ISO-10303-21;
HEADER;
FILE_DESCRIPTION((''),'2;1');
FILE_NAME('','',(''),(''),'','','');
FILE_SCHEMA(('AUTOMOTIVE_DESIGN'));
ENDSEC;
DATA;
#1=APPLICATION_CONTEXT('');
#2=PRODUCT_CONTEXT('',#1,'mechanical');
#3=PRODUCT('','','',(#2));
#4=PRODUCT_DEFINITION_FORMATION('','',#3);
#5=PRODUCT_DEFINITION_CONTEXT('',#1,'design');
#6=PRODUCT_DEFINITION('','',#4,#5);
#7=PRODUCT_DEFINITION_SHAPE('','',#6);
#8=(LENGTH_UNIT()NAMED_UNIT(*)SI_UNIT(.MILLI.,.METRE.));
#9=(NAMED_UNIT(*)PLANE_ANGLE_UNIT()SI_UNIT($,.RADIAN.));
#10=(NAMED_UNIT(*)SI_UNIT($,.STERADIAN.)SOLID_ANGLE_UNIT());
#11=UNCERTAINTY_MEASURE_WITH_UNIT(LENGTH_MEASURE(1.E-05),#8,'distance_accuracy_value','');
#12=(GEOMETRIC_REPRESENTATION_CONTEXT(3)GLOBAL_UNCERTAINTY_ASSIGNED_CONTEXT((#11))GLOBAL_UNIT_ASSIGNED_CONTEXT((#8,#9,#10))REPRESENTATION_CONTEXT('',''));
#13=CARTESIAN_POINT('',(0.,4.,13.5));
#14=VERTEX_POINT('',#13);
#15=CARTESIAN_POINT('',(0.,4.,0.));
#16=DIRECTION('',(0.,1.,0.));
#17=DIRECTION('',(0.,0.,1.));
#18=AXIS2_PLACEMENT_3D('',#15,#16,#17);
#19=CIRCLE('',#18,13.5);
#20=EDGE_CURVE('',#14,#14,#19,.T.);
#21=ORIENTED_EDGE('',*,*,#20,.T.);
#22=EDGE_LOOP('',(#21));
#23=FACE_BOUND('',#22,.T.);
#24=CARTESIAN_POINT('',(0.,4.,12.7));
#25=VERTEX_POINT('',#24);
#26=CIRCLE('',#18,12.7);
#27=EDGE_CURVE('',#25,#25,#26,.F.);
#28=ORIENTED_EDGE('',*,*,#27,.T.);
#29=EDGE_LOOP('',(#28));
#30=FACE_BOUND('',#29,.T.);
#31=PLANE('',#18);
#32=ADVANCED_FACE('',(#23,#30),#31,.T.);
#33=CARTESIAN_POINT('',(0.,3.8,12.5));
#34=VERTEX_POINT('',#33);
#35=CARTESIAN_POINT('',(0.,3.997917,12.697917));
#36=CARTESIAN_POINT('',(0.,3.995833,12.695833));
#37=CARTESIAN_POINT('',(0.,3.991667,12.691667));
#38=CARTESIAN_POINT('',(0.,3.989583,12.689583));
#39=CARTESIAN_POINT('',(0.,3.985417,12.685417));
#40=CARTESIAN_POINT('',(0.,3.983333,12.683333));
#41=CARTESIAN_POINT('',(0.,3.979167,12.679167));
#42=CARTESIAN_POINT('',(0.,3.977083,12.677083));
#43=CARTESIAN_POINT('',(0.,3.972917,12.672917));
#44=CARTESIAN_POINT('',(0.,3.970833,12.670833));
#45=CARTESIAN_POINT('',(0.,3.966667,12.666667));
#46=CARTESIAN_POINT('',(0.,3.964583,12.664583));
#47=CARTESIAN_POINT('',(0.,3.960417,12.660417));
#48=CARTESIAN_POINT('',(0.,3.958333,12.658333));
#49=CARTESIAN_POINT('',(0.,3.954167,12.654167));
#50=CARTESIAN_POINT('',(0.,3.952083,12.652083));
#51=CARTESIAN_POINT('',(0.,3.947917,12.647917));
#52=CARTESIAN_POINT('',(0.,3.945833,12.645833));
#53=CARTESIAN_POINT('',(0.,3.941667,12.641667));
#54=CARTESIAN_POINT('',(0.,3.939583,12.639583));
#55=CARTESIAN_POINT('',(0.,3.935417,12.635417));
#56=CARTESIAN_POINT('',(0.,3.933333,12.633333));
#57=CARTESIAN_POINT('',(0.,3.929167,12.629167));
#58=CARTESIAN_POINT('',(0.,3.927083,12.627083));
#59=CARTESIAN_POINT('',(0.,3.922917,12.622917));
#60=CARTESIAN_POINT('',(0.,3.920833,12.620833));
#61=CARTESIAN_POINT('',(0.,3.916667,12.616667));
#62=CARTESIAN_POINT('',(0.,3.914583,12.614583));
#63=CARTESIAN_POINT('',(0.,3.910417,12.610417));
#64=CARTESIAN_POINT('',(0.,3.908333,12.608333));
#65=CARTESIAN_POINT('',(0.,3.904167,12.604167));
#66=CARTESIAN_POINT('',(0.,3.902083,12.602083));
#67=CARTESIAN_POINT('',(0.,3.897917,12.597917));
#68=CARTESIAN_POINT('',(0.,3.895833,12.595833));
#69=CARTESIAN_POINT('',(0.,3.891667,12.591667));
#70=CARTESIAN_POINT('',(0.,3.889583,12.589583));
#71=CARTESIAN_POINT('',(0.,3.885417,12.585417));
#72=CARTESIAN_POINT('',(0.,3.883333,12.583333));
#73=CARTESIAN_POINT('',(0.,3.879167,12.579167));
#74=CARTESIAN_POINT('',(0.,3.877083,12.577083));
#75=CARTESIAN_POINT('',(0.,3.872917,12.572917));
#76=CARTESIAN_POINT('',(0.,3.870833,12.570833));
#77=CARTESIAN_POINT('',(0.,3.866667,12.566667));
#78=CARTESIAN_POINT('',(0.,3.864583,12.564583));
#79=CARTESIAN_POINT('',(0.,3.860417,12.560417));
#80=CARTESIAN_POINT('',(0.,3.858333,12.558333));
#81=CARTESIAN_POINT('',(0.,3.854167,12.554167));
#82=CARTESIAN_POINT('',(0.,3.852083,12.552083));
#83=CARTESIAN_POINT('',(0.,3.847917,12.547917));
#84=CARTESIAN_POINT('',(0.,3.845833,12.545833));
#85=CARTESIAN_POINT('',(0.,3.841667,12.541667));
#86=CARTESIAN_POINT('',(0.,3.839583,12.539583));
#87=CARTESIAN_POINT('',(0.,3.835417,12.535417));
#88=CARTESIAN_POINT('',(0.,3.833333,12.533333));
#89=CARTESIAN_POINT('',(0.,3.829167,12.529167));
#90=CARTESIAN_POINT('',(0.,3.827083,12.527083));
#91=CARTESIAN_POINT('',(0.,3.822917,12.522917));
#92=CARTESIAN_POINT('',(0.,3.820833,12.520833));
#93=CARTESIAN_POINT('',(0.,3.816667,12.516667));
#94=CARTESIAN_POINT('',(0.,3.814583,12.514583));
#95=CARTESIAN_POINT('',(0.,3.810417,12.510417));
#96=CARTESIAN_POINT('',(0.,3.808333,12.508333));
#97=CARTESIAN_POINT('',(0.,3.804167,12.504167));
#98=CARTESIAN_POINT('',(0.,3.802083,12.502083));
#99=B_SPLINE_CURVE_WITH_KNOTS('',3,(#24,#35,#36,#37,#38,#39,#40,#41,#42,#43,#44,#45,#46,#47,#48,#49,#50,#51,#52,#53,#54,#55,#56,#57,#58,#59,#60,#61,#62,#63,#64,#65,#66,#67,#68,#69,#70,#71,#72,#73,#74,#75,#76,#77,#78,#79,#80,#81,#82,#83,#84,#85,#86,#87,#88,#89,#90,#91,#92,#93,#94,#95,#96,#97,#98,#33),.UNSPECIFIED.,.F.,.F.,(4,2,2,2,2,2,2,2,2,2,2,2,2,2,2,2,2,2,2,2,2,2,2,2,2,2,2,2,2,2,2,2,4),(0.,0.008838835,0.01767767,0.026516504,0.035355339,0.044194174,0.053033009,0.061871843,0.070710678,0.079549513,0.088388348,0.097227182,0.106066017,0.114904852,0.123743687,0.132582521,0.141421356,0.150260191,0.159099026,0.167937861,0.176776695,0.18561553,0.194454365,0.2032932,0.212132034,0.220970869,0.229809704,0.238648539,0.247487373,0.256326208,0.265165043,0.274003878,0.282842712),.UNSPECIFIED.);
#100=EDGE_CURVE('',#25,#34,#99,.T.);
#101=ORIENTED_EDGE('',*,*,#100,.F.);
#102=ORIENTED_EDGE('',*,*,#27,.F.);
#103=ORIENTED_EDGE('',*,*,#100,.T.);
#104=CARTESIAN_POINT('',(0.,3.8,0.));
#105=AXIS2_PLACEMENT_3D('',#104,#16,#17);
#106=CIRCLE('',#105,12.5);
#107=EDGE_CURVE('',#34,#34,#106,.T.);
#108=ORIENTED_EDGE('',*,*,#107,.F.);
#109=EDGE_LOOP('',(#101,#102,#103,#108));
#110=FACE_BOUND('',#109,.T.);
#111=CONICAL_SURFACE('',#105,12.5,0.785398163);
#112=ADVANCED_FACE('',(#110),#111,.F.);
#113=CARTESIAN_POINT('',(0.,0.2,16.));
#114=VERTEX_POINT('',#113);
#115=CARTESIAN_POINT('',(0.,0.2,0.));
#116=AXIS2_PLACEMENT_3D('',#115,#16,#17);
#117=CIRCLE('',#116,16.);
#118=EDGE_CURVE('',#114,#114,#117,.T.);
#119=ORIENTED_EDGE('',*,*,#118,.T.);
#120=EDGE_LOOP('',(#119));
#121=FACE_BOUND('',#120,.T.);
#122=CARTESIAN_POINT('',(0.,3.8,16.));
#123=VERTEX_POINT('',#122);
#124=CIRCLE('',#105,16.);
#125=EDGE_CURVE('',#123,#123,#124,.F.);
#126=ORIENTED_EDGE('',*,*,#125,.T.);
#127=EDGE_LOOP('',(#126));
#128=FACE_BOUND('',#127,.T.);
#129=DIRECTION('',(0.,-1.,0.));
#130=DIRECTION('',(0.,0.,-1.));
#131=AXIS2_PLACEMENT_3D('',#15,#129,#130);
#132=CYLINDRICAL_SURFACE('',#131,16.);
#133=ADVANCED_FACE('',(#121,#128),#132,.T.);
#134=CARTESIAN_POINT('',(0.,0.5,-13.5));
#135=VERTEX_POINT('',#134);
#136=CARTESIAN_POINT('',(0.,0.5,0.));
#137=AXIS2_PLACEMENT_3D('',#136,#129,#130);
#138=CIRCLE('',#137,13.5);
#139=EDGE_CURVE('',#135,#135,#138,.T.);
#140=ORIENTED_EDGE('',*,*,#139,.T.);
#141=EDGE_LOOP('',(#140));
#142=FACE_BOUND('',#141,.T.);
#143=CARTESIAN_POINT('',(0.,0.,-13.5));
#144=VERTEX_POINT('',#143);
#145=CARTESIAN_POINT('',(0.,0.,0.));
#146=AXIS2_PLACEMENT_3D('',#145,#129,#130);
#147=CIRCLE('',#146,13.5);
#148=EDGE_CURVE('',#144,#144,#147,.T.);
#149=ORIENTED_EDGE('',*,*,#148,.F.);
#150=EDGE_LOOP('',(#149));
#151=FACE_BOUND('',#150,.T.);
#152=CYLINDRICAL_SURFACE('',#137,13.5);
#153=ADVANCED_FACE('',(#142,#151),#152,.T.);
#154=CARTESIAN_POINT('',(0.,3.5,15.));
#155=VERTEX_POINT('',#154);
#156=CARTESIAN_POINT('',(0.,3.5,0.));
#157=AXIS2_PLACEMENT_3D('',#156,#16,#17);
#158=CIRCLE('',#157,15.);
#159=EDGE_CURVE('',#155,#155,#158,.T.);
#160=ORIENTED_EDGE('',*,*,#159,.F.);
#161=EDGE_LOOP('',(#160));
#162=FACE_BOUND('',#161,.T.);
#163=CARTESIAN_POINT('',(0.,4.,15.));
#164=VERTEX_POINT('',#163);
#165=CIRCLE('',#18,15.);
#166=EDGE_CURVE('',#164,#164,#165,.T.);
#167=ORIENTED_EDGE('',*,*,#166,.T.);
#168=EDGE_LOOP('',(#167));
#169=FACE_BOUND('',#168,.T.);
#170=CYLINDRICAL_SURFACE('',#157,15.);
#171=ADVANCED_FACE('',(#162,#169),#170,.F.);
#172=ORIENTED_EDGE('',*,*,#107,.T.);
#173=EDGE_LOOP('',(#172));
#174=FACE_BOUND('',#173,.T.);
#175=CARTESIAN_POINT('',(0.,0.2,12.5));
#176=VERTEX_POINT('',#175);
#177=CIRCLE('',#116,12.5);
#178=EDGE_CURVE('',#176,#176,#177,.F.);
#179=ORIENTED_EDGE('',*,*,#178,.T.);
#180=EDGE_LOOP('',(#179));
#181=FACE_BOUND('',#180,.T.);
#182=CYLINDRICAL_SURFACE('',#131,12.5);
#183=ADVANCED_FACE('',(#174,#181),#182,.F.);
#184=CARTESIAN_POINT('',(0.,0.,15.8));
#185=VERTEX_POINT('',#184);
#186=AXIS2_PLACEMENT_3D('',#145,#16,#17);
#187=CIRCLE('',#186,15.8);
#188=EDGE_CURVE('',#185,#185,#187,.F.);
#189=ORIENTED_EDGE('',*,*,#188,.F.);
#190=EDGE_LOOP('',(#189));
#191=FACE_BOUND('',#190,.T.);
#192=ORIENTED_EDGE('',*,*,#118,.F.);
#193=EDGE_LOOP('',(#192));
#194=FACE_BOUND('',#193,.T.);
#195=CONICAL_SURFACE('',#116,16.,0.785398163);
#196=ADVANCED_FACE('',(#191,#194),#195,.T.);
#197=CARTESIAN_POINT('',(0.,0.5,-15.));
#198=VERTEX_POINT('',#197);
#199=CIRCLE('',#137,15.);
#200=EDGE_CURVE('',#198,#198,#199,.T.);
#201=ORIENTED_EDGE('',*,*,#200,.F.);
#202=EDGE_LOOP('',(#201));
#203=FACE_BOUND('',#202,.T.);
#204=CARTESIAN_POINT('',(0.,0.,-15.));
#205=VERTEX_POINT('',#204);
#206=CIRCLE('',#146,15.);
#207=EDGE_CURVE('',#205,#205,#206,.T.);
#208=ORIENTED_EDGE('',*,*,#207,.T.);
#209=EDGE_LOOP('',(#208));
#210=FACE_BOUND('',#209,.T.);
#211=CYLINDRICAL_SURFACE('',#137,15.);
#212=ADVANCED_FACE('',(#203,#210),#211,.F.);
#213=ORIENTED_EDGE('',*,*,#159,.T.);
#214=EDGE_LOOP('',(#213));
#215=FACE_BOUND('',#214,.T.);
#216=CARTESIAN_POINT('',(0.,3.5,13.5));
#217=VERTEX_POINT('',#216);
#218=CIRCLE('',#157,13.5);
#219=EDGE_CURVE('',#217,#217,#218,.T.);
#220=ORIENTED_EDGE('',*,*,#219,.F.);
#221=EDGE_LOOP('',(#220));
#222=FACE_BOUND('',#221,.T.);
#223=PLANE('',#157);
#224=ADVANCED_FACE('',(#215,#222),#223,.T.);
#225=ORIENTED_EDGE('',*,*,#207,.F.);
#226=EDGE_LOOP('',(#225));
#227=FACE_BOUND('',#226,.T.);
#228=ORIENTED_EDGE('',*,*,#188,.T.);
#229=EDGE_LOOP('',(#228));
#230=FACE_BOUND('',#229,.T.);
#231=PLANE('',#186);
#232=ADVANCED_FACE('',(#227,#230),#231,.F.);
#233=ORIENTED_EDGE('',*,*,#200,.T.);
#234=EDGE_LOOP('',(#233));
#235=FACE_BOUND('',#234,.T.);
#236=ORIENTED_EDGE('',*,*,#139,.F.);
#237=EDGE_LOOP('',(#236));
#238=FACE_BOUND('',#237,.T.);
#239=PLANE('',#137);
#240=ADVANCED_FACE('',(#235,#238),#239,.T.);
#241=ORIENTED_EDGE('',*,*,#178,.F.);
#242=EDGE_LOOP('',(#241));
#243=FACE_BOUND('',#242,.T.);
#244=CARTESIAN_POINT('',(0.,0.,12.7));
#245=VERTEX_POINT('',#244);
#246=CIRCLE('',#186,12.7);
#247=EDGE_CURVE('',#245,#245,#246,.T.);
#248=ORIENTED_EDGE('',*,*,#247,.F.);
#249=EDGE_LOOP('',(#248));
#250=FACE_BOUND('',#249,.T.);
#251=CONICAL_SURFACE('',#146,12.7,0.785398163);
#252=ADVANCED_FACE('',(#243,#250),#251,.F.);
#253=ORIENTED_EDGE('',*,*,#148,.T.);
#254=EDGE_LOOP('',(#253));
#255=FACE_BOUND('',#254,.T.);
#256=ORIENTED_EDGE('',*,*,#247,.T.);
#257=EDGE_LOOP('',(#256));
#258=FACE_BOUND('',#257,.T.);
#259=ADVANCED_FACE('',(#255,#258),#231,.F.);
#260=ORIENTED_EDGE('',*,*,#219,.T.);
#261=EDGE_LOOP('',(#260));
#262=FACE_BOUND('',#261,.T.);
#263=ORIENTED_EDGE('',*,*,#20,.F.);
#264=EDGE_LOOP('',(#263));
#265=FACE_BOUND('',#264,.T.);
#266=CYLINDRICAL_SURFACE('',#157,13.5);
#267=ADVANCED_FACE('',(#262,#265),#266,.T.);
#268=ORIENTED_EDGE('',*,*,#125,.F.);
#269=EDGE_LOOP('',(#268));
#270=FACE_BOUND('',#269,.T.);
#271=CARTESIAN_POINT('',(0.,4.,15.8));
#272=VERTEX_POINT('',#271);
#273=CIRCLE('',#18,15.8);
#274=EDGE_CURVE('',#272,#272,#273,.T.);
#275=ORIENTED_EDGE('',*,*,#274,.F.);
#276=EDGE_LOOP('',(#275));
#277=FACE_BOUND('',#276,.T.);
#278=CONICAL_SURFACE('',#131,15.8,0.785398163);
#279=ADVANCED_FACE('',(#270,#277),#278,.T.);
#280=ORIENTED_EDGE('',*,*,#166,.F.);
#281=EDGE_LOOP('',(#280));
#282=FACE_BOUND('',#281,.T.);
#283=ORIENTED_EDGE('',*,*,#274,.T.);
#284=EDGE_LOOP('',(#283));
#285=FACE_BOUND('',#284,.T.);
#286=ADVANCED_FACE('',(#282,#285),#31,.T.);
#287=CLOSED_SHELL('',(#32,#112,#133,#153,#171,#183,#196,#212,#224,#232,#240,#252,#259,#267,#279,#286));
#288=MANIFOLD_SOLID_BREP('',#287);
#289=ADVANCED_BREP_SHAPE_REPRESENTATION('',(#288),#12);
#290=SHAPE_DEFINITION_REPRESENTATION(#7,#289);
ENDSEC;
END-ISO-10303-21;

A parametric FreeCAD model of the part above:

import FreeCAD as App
import Part
import Sketcher
from FreeCAD import Vector
Q = App.Units.Quantity


def edges_at(feature, points):
    """Names of the edges that pass closest to the given points."""
    edges = feature.Shape.Edges
    near = lambda p: min(range(len(edges)), key=lambda i: edges[i].distToShape(Part.Vertex(*p))[0])
    return sorted({f"Edge{near(p) + 1}" for p in points})

doc = App.newDocument("Part")
body = doc.addObject("PartDesign::Body", "Body")

sketch1 = doc.addObject("Sketcher::SketchObject", "Sketch")
body.addObject(sketch1)
sketch1.AttachmentSupport = (doc.XZ_Plane, [""])
sketch1.MapMode = "FlatFace"
sketch1.addGeometry([
    Part.Circle(Vector(0, 0, 0), Vector(0, 0, 1), 16),
    Part.Circle(Vector(0, 0, 0), Vector(0, 0, 1), 12),
], False)
sketch1.addConstraint([
    Sketcher.Constraint("Coincident", 0, 3, -1, 1),
    Sketcher.Constraint("Coincident", 1, 3, -1, 1),
    Sketcher.Constraint("Diameter", 0, Q("32 mm")),
    Sketcher.Constraint("Diameter", 1, Q("25 mm")),
])
pad1 = doc.addObject("PartDesign::Pad", "Pad")
body.addObject(pad1)
pad1.Profile = sketch1
pad1.Length = 4
pad1.Reversed = True
doc.recompute()

chamfer = doc.addObject("PartDesign::Chamfer", "Chamfer")
body.addObject(chamfer)
chamfer.Base = (pad1, edges_at(pad1, [
    (0, 0, -16),
    (0, 4, -16),
    (0, 0, -12.5),
    (0, 4, -12.5),
]))
chamfer.Size = 0.2

sketch2 = doc.addObject("Sketcher::SketchObject", "Sketch001")
body.addObject(sketch2)
sketch2.AttachmentSupport = (doc.XZ_Plane, [""])
sketch2.MapMode = "FlatFace"
sketch2.AttachmentOffset = App.Placement(Vector(0, 0, -4), App.Rotation())
sketch2.addGeometry([
    Part.Circle(Vector(0, 0, 0), Vector(0, 0, 1), 15),
    Part.Circle(Vector(0, 0, 0), Vector(0, 0, 1), 14),
], False)
sketch2.addConstraint([
    Sketcher.Constraint("Coincident", 0, 3, -1, 1),
    Sketcher.Constraint("Coincident", 1, 3, -1, 1),
    Sketcher.Constraint("Diameter", 0, Q("30 mm")),
    Sketcher.Constraint("Diameter", 1, Q("27 mm")),
])
pocket1 = doc.addObject("PartDesign::Pocket", "Pocket")
body.addObject(pocket1)
pocket1.Profile = sketch2
pocket1.Length = 0.5
pocket1.Reversed = True

sketch3 = doc.addObject("Sketcher::SketchObject", "Sketch002")
body.addObject(sketch3)
sketch3.AttachmentSupport = (doc.XZ_Plane, [""])
sketch3.MapMode = "FlatFace"
sketch3.AttachmentOffset = App.Placement(Vector(0, 0, -0.5), App.Rotation())
sketch3.addGeometry([
    Part.Circle(Vector(0, 0, 0), Vector(0, 0, 1), 15),
    Part.Circle(Vector(0, 0, 0), Vector(0, 0, 1), 14),
], False)
sketch3.addConstraint([
    Sketcher.Constraint("Coincident", 0, 3, -1, 1),
    Sketcher.Constraint("Coincident", 1, 3, -1, 1),
    Sketcher.Constraint("Diameter", 0, Q("30 mm")),
    Sketcher.Constraint("Diameter", 1, Q("27 mm")),
])
pocket2 = doc.addObject("PartDesign::Pocket", "Pocket001")
body.addObject(pocket2)
pocket2.Profile = sketch3
pocket2.Length = 0.5
pocket2.Reversed = True

doc.recompute()
